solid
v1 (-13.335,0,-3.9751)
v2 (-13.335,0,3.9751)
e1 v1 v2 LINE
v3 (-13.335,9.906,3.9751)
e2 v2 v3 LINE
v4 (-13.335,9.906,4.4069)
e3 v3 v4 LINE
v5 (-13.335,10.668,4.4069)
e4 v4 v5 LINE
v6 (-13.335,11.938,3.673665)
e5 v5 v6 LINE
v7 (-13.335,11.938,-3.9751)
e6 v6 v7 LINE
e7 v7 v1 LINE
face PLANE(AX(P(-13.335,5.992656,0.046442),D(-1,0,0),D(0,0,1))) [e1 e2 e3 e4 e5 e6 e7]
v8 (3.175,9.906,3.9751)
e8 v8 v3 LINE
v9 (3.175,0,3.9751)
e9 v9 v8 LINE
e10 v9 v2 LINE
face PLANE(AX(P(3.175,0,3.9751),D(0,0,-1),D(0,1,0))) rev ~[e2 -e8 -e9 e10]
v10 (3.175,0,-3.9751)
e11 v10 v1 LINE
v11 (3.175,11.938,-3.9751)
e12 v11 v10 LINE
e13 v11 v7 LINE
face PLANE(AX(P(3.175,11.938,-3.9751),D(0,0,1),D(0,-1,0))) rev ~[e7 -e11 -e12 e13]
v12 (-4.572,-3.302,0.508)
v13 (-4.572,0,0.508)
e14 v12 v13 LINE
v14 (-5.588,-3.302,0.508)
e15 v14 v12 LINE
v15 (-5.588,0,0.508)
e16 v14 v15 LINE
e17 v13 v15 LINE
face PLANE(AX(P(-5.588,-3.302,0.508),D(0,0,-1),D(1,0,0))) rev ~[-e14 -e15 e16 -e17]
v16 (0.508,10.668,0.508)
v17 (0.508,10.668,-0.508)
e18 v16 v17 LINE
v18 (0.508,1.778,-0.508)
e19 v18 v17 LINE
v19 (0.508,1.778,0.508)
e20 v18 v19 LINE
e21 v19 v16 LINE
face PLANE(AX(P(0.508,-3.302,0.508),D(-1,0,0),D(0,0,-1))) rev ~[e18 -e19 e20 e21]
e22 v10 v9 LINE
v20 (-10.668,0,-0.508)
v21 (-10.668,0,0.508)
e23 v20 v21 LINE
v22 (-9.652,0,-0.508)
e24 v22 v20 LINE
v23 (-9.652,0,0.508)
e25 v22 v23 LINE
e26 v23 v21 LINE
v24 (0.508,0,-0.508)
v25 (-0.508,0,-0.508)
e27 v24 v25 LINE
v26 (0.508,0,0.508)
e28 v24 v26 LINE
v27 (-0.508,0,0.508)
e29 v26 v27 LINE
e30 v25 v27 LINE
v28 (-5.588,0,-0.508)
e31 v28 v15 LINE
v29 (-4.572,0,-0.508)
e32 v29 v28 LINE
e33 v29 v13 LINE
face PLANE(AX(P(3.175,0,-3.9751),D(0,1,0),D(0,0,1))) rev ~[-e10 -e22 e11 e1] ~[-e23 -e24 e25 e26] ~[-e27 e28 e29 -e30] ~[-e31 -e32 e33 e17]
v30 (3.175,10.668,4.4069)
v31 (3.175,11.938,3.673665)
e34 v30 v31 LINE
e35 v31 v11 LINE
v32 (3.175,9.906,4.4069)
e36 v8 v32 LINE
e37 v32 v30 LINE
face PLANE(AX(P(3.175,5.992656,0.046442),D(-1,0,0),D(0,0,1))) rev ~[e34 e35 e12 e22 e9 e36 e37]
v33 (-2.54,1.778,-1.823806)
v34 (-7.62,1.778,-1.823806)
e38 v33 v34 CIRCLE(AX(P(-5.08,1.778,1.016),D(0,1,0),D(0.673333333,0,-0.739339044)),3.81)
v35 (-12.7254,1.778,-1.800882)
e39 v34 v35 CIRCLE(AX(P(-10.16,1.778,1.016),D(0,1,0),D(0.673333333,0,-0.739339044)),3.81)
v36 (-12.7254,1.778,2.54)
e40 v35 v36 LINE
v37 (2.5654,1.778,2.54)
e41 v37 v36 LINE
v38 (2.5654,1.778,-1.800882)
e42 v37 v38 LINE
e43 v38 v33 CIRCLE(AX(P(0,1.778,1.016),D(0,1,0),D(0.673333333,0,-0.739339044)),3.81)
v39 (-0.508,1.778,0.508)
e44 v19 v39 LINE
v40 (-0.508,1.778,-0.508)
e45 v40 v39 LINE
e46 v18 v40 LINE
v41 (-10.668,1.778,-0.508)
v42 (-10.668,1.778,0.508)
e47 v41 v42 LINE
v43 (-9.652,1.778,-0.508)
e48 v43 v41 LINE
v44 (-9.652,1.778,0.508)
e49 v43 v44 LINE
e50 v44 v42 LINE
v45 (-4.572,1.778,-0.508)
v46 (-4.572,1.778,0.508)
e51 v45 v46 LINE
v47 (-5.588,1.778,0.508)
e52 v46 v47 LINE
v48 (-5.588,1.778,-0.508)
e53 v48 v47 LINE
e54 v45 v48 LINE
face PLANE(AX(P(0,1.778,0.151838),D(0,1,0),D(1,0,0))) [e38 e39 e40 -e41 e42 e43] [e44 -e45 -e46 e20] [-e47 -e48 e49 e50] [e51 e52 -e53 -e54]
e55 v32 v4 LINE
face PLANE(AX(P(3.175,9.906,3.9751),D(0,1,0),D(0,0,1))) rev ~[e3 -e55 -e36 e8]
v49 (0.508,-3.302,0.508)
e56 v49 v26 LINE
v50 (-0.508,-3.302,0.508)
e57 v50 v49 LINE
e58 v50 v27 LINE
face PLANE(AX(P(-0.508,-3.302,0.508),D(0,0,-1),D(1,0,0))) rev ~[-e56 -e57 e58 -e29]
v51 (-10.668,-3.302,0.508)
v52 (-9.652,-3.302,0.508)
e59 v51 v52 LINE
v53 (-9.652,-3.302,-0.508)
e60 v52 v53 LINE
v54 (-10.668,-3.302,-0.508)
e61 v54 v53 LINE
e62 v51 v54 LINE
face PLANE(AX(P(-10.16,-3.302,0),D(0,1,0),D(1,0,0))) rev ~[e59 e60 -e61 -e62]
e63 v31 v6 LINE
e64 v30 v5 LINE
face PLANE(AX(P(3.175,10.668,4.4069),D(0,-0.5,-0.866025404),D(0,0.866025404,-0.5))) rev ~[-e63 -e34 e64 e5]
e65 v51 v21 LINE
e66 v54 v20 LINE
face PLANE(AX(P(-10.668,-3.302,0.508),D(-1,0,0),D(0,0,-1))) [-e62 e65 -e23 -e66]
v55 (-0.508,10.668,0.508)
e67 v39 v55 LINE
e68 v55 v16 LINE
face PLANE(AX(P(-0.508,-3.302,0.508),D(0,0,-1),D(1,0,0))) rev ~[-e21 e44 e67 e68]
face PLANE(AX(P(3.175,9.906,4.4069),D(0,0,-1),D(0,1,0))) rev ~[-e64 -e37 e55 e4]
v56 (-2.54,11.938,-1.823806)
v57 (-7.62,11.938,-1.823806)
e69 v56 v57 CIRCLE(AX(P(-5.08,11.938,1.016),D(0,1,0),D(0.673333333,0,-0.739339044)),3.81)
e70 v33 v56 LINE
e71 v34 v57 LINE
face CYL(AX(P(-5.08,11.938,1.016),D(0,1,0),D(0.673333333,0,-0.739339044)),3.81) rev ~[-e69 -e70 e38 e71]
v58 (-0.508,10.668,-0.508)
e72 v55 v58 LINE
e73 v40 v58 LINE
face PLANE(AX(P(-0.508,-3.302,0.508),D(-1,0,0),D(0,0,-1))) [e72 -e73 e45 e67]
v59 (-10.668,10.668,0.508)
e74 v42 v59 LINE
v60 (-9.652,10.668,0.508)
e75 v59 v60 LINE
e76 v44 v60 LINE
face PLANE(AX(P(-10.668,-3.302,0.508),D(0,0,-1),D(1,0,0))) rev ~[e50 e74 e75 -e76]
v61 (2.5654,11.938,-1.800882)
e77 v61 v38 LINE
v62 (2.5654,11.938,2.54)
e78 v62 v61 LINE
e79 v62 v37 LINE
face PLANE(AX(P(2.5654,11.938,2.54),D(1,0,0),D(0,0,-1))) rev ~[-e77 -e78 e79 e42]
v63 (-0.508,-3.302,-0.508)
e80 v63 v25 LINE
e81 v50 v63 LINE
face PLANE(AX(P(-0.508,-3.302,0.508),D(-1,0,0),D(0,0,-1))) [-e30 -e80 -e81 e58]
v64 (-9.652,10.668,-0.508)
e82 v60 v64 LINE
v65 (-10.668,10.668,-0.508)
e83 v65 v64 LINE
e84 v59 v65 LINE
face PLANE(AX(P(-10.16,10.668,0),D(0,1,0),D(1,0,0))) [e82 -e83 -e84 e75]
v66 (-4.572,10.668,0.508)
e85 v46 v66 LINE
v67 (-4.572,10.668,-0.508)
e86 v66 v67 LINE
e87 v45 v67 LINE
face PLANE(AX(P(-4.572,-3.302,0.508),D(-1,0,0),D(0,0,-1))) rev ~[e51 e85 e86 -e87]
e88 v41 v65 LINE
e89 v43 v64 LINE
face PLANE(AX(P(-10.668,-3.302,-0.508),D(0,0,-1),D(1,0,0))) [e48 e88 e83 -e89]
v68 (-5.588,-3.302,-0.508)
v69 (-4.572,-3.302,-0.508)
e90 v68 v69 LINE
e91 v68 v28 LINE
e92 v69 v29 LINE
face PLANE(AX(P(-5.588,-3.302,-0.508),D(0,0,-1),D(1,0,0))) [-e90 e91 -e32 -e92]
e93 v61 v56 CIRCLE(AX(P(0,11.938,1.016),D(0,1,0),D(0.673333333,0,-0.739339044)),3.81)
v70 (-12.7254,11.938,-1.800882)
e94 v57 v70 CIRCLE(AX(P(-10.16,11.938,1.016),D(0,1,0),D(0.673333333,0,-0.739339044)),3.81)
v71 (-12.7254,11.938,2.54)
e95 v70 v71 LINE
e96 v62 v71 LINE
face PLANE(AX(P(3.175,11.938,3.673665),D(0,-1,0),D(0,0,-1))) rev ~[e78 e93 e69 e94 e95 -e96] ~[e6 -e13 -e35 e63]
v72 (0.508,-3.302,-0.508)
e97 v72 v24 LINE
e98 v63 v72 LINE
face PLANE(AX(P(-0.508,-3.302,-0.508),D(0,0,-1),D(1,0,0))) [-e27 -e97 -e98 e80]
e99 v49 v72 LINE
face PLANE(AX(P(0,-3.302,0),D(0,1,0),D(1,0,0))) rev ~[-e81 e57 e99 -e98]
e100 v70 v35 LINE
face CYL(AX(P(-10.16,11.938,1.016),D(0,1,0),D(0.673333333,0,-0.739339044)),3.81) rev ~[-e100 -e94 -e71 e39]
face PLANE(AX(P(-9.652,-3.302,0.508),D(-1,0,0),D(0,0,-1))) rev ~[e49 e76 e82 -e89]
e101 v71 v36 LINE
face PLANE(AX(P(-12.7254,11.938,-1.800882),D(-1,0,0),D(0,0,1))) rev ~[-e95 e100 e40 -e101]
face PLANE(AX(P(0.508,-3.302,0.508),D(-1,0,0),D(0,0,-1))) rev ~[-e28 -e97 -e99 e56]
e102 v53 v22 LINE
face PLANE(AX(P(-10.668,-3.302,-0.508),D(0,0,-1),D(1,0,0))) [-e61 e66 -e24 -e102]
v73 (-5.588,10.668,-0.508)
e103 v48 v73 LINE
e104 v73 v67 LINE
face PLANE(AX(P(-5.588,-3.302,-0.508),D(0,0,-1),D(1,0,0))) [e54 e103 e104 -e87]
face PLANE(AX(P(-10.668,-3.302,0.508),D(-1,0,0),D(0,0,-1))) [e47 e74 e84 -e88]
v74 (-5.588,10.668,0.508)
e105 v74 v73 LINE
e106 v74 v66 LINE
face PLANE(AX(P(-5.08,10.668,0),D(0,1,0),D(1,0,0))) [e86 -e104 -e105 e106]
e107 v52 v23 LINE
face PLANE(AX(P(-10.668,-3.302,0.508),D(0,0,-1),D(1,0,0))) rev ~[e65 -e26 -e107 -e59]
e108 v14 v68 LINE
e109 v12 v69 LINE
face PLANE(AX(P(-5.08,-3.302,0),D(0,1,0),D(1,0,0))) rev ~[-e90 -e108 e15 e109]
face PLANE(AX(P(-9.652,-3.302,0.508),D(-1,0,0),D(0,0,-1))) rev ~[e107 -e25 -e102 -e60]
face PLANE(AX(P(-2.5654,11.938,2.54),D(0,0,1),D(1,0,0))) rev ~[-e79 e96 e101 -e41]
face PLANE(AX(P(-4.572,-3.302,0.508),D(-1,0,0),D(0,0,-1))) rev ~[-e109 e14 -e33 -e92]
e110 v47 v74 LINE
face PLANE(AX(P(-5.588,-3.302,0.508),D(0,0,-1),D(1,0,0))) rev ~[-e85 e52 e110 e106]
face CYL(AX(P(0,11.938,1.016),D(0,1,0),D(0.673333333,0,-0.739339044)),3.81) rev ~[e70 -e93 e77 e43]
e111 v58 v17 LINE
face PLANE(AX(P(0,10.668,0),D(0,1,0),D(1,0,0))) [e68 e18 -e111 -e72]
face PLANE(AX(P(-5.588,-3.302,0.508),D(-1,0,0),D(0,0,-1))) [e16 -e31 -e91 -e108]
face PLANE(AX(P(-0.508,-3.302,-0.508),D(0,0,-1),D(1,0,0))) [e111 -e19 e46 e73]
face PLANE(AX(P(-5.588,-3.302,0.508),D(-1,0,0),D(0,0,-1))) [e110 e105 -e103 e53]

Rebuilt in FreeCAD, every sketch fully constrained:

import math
import FreeCAD as App
import Part
import Sketcher

V = App.Vector
Q = App.Units.Quantity


def add_polygon(sketch, points):
    """Adds a closed chain of lines whose ends are joined by coincident constraints."""
    first, n = sketch.GeometryCount, len(points)
    for a, b in zip(points, points[1:] + points[:1]):
        sketch.addGeometry(Part.LineSegment(App.Vector(*a, 0), App.Vector(*b, 0)), False)
    for i in range(n):
        sketch.addConstraint(Sketcher.Constraint("Coincident", first + i, 2, first + (i + 1) % n, 1))

doc = App.newDocument("Part")
body = doc.addObject("PartDesign::Body", "Body")

# Sketch on YZ plane
sketch1 = body.newObject("Sketcher::SketchObject", "Sketch")
sketch1.AttachmentSupport = (doc.getObject("YZ_Plane"), [""])
sketch1.MapMode = "FlatFace"
sketch1.AttachmentOffset = App.Placement(V(0, 0, 0.125 * 25.4), App.Rotation())
add_polygon(sketch1, [(9.91, 3.98), (0, 3.98), (0, -3.98), (11.94, -3.98), (11.94, 3.67), (10.67, 4.41), (9.91, 4.41)])  # lines 0-6
sketch1.addConstraint([
    Sketcher.Constraint("Horizontal", 0),
    Sketcher.Constraint("Vertical", 1),
    Sketcher.Constraint("Horizontal", 2),
    Sketcher.Constraint("Vertical", 3),
    Sketcher.Constraint("Horizontal", 5),
    Sketcher.Constraint("Vertical", 6),
    Sketcher.Constraint("Symmetric", 0, 2, 1, 2, -1, 1),
    Sketcher.Constraint("Angle", 4, Q("150 deg")),
    Sketcher.Constraint("DistanceX", 0, 2, 0, 1, Q("0.39 in")),
    Sketcher.Constraint("DistanceX", 2, 1, 2, 2, Q("0.47 in")),
    Sketcher.Constraint("DistanceX", 5, 2, 5, 1, Q("0.03 in")),
    Sketcher.Constraint("DistanceY", 1, 2, 1, 1, Q("0.313 in")),
    Sketcher.Constraint("DistanceY", 6, 2, 6, 1, Q("0.017 in")),
])
pad1 = body.newObject("PartDesign::Pad", "Pad")
pad1.Profile = sketch1
pad1.Length = Q("0.65 in")
pad1.Reversed = True

# Sketch on XZ plane
sketch2 = body.newObject("Sketcher::SketchObject", "Sketch001")
sketch2.AttachmentSupport = (doc.getObject("XZ_Plane"), [""])
sketch2.MapMode = "FlatFace"
sketch2.AttachmentOffset = App.Placement(V(0, 0, -0.47 * 25.4), App.Rotation())
sketch2.addGeometry([
    Part.LineSegment(V(-2.6, -1.8, 0), V(-2.6, 2.5, 0)),
    Part.LineSegment(V(-2.6, 2.5, 0), V(2.6, 2.5, 0)),
    Part.LineSegment(V(2.6, 2.5, 0), V(2.6, -1.8, 0)),
    Part.ArcOfCircle(Part.Circle(V(0, 1, 0), V(0, 0, 1), 3.8), math.radians(-132), math.radians(-48)),
], False)
sketch2.addConstraint([
    Sketcher.Constraint("Coincident", 0, 2, 1, 1),
    Sketcher.Constraint("Coincident", 1, 2, 2, 1),
    Sketcher.Constraint("Coincident", 2, 2, 3, 2),
    Sketcher.Constraint("Coincident", 3, 1, 0, 1),
    Sketcher.Constraint("Vertical", 0),
    Sketcher.Constraint("Horizontal", 1),
    Sketcher.Constraint("Vertical", 2),
    Sketcher.Constraint("Symmetric", 2, 2, 3, 1, -2),
    Sketcher.Constraint("Radius", 3, Q("0.15 in")),
    Sketcher.Constraint("DistanceY", -1, 1, 0, 2, Q("0.1 in")),
    Sketcher.Constraint("DistanceX", 1, 1, 1, 2, Q("0.202 in")),
    Sketcher.Constraint("DistanceY", -1, 1, 3, 3, Q("0.04 in")),
])
pocket1 = body.newObject("PartDesign::Pocket", "Pocket")
pocket1.Profile = sketch2
pocket1.Length = Q("0.4 in")
pocket1.Reversed = True

# Sketch on XZ plane
sketch3 = body.newObject("Sketcher::SketchObject", "Sketch002")
sketch3.AttachmentSupport = (doc.getObject("XZ_Plane"), [""])
sketch3.MapMode = "FlatFace"
sketch3.AttachmentOffset = App.Placement(V(0, 0, 0.13 * 25.4), App.Rotation())
add_polygon(sketch3, [(-0.5, -0.5), (-0.5, 0.5), (0.5, 0.5), (0.5, -0.5)])  # lines 0-3
sketch3.addConstraint([
    Sketcher.Constraint("Vertical", 0),
    Sketcher.Constraint("Horizontal", 1),
    Sketcher.Constraint("Vertical", 2),
    Sketcher.Constraint("Horizontal", 3),
    Sketcher.Constraint("Symmetric", 0, 2, 2, 2, -1, 1),
    Sketcher.Constraint("Equal", 3, 0),
    Sketcher.Constraint("DistanceX", 1, 1, 1, 2, Q("0.04 in")),
])
pad2 = body.newObject("PartDesign::Pad", "Pad001")
pad2.Profile = sketch3
pad2.Length = Q("0.55 in")
pad2.Reversed = True
doc.recompute()

linearpattern = body.newObject("PartDesign::LinearPattern", "LinearPattern")
linearpattern.Originals = [pocket1, pad2]
linearpattern.Direction = (doc.getObject("X_Axis"), [""])
linearpattern.Mode = "offset"
linearpattern.Offset = Q("0.2 in")
linearpattern.Occurrences = 3
linearpattern.Reversed = True
body.Tip = linearpattern

doc.recompute()
